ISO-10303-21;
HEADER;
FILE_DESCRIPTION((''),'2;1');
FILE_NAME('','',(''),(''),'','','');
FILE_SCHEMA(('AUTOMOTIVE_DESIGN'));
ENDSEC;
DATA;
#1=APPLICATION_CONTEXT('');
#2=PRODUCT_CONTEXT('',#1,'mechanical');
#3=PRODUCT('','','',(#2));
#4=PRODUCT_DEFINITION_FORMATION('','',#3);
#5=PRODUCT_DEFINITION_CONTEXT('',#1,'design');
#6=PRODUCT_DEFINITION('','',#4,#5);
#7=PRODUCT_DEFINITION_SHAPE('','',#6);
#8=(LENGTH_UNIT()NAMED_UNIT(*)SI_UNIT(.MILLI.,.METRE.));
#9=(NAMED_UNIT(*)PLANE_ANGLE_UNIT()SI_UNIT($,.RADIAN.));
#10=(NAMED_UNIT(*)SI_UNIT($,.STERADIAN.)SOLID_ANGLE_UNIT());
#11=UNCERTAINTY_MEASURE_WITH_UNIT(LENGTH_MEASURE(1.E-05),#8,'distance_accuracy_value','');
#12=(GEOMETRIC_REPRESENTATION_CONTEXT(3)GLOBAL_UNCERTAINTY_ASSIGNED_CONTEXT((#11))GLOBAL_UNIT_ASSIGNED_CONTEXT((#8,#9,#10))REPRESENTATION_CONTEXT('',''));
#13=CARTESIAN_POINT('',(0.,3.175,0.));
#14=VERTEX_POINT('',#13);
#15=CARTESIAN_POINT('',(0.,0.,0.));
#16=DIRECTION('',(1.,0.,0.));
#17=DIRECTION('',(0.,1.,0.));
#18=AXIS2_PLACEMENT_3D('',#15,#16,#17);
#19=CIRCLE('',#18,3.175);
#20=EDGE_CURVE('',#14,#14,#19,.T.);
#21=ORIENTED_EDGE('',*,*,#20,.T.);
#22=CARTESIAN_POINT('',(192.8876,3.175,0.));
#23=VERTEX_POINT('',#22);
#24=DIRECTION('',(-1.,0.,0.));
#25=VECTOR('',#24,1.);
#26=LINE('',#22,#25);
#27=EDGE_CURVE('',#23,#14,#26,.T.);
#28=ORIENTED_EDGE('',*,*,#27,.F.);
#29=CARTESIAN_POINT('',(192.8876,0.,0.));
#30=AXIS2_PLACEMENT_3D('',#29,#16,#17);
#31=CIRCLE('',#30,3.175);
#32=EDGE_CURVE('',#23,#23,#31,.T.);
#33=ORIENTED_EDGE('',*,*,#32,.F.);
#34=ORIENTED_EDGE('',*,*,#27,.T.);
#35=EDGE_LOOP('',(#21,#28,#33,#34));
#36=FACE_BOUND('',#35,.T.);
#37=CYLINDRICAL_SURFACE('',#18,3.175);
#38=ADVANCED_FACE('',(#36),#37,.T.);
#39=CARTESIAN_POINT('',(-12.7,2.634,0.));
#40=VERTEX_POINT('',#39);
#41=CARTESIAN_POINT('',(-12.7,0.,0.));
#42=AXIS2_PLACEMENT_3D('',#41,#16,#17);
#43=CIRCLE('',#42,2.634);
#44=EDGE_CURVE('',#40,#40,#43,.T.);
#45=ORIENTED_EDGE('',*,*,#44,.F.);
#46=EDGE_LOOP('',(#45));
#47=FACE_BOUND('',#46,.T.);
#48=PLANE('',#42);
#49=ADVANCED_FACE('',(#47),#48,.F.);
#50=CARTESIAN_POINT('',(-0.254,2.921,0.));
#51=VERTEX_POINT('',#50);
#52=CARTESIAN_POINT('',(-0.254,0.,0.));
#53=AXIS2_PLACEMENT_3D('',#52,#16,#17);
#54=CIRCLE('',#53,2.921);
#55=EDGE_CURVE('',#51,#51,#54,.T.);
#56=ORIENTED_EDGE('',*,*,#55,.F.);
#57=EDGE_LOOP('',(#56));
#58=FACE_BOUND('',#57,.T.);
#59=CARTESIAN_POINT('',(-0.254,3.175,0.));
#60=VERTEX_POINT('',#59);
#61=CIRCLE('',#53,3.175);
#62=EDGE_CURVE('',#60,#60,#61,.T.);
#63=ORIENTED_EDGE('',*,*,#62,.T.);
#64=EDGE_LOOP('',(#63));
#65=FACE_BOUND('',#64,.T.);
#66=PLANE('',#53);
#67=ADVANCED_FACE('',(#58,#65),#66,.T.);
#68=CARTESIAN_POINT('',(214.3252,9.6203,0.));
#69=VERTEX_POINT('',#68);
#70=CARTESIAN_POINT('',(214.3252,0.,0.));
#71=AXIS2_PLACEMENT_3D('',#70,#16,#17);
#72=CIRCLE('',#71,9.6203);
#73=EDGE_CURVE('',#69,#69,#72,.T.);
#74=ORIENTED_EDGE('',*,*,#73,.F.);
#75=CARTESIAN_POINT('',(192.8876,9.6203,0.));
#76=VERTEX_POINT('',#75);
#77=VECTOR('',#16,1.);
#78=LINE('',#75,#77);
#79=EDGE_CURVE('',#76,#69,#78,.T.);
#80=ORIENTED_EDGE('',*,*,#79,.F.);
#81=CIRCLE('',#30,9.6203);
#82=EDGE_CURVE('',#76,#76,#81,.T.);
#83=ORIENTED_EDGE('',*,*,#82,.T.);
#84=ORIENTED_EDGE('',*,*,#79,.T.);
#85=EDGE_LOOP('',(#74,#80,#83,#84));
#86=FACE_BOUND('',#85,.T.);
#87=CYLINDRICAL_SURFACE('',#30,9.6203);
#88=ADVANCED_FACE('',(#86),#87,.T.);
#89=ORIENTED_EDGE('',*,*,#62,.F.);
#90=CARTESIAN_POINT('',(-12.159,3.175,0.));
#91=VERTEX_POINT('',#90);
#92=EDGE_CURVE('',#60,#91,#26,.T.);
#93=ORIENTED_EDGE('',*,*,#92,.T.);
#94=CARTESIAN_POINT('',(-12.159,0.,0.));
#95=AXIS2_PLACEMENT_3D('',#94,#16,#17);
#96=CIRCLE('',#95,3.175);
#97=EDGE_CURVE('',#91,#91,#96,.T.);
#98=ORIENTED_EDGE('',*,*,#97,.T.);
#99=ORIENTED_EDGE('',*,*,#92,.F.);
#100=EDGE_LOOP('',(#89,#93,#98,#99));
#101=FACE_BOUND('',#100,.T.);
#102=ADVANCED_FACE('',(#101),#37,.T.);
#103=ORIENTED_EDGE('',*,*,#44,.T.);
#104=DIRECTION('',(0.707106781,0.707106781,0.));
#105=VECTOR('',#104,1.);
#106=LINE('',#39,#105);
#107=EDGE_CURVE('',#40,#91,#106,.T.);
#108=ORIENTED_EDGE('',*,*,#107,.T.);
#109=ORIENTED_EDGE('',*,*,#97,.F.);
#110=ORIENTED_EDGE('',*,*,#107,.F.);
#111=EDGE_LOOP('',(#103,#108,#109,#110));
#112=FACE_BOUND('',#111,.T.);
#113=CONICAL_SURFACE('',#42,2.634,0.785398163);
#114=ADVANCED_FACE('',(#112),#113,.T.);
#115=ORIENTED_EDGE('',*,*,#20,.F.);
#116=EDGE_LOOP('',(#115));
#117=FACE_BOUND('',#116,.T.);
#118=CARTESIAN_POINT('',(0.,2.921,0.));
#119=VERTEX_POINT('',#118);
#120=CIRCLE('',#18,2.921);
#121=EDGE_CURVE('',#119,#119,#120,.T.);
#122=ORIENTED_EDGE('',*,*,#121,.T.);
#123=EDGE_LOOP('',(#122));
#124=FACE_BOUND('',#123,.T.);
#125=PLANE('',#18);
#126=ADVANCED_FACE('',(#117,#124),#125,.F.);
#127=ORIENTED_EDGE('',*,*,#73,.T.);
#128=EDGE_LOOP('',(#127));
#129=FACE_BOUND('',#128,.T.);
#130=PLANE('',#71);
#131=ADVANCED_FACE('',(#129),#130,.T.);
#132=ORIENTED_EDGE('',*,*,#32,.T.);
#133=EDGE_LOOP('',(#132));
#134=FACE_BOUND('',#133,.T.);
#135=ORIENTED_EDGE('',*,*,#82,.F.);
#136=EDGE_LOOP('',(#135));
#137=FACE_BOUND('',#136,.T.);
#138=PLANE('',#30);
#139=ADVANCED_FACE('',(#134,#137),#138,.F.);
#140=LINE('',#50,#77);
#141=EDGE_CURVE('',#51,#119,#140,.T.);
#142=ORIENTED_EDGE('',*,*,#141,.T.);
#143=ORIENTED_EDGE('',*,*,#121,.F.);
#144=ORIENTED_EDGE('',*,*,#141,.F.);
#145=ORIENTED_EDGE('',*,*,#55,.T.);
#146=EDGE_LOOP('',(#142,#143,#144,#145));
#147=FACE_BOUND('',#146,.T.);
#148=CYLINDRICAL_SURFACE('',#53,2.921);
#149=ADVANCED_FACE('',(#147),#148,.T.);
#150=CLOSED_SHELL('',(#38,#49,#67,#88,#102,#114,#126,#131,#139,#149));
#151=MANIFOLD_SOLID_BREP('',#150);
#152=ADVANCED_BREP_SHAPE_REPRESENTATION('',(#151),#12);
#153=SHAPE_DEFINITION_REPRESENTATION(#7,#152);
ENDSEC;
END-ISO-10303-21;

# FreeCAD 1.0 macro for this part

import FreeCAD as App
import Part
import Sketcher
from FreeCAD import Vector
Q = App.Units.Quantity

doc = App.newDocument("Part")
params = doc.addObject("Spreadsheet::Sheet", "Params")
for row, (alias, value) in enumerate([
    ("sketch1_width", "8.438 in"),
    ("sketch1_width2", "0.844 in"),
    ("sketch1_height", "0.125 in"),
    ("revolution_angle", "360 deg"),
    ("sketch2_width", "0.5 in"),
    ("sketch2_height", "0.125 in"),
    ("revolution2_angle", "360 deg"),
    ("sketch3_width", "0.01 in"),
    ("sketch3_height", "0.02 in"),
    ("groove_angle", "360 deg"),
], start=1):
    params.set(f"A{row}", alias)
    params.set(f"B{row}", "=" + value)
    params.setAlias(f"B{row}", alias)

body = doc.addObject("PartDesign::Body", "Body")

# Sketch on XY plane
sketch1 = body.newObject("Sketcher::SketchObject", "Sketch")
sketch1.AttachmentSupport = (doc.getObject("XY_Plane"), [""])
sketch1.MapMode = "FlatFace"
sketch1.addGeometry([
    Part.LineSegment(Vector(0, 0, 0), Vector(214.3252, 0, 0)),  # 0
    Part.LineSegment(Vector(214.3252, 0, 0), Vector(214.3252, 9.6203, 0)),  # 1
    Part.LineSegment(Vector(214.3252, 9.6203, 0), Vector(192.8876, 9.6203, 0)),  # 2
    Part.LineSegment(Vector(192.8876, 9.6203, 0), Vector(192.8876, 3.175, 0)),  # 3
    Part.LineSegment(Vector(192.8876, 3.175, 0), Vector(0, 3.175, 0)),  # 4
    Part.LineSegment(Vector(0, 3.175, 0), Vector(0, 0, 0)),  # 5
], False)
sketch1.addConstraint([
    Sketcher.Constraint("Coincident", 0, 2, 1, 1),
    Sketcher.Constraint("Coincident", 1, 2, 2, 1),
    Sketcher.Constraint("Coincident", 2, 2, 3, 1),
    Sketcher.Constraint("Coincident", 3, 2, 4, 1),
    Sketcher.Constraint("Coincident", 4, 2, 5, 1),
    Sketcher.Constraint("Coincident", 5, 2, 0, 1),
    Sketcher.Constraint("Horizontal", 0),
    Sketcher.Constraint("Vertical", 1),
    Sketcher.Constraint("Horizontal", 2),
    Sketcher.Constraint("Vertical", 3),
    Sketcher.Constraint("Horizontal", 4),
    Sketcher.Constraint("Vertical", 5),
    Sketcher.Constraint("Coincident", 5, 2, -1, 1),
    Sketcher.Constraint("DistanceX", 0, 1, 0, 2, Q("8.438 in")),
    Sketcher.Constraint("DistanceX", 2, 2, 2, 1, Q("0.844 in")),
    Sketcher.Constraint("DistanceY", 5, 2, 5, 1, Q("0.125 in")),
    Sketcher.Constraint("DistanceY", 1, 1, 1, 2, 9.6203),
])
sketch1.setExpression("Constraints[13]", "Params.sketch1_width")
sketch1.setExpression("Constraints[14]", "Params.sketch1_width2")
sketch1.setExpression("Constraints[15]", "Params.sketch1_height")
revolution = body.newObject("PartDesign::Revolution", "Revolution")
revolution.Profile = sketch1
revolution.ReferenceAxis = (sketch1, ["H_Axis"])
revolution.setExpression("Angle", "Params.revolution_angle")

# Sketch on XY plane
sketch2 = body.newObject("Sketcher::SketchObject", "Sketch001")
sketch2.AttachmentSupport = (doc.getObject("XY_Plane"), [""])
sketch2.MapMode = "FlatFace"
sketch2.addGeometry([
    Part.LineSegment(Vector(-12.7, 0, 0), Vector(0, 0, 0)),  # 0
    Part.LineSegment(Vector(0, 0, 0), Vector(0, 3.175, 0)),  # 1
    Part.LineSegment(Vector(0, 3.175, 0), Vector(-12.159, 3.175, 0)),  # 2
    Part.LineSegment(Vector(-12.159, 3.175, 0), Vector(-12.7, 2.634, 0)),  # 3
    Part.LineSegment(Vector(-12.7, 2.634, 0), Vector(-12.7, 0, 0)),  # 4
], False)
sketch2.addConstraint([
    Sketcher.Constraint("Coincident", 0, 2, 1, 1),
    Sketcher.Constraint("Coincident", 1, 2, 2, 1),
    Sketcher.Constraint("Coincident", 2, 2, 3, 1),
    Sketcher.Constraint("Coincident", 3, 2, 4, 1),
    Sketcher.Constraint("Coincident", 4, 2, 0, 1),
    Sketcher.Constraint("Horizontal", 0),
    Sketcher.Constraint("Vertical", 1),
    Sketcher.Constraint("Horizontal", 2),
    Sketcher.Constraint("Vertical", 4),
    Sketcher.Constraint("Coincident", 0, 2, -1, 1),
    Sketcher.Constraint("DistanceX", 0, 1, 0, 2, Q("0.5 in")),
    Sketcher.Constraint("Angle", 3, Q("-135 deg")),
    Sketcher.Constraint("DistanceY", 1, 1, 1, 2, Q("0.125 in")),
    Sketcher.Constraint("DistanceX", 2, 2, 2, 1, Q("0.4787 in")),
])
sketch2.setExpression("Constraints[10]", "Params.sketch2_width")
sketch2.setExpression("Constraints[12]", "Params.sketch2_height")
revolution2 = body.newObject("PartDesign::Revolution", "Revolution001")
revolution2.Profile = sketch2
revolution2.ReferenceAxis = (sketch2, ["H_Axis"])
revolution2.setExpression("Angle", "Params.revolution2_angle")

# Sketch on XY plane
sketch3 = body.newObject("Sketcher::SketchObject", "Sketch002")
sketch3.AttachmentSupport = (doc.getObject("XY_Plane"), [""])
sketch3.MapMode = "FlatFace"
sketch3.addGeometry([
    Part.LineSegment(Vector(-0.254, 3.429, 0), Vector(-0.254, 2.921, 0)),
    Part.LineSegment(Vector(-0.254, 2.921, 0), Vector(0, 2.921, 0)),
    Part.LineSegment(Vector(0, 2.921, 0), Vector(0, 3.429, 0)),
    Part.LineSegment(Vector(0, 3.429, 0), Vector(-0.254, 3.429, 0)),
], False)
sketch3.addConstraint([
    Sketcher.Constraint("Coincident", 0, 2, 1, 1),
    Sketcher.Constraint("Coincident", 1, 2, 2, 1),
    Sketcher.Constraint("Coincident", 2, 2, 3, 1),
    Sketcher.Constraint("Coincident", 3, 2, 0, 1),
    Sketcher.Constraint("Vertical", 0),
    Sketcher.Constraint("Horizontal", 1),
    Sketcher.Constraint("Vertical", 2),
    Sketcher.Constraint("Horizontal", 3),
    Sketcher.Constraint("PointOnObject", 1, 2, -2),
    Sketcher.Constraint("DistanceX", 1, 1, 1, 2, Q("0.01 in")),
    Sketcher.Constraint("DistanceY", 0, 2, 0, 1, Q("0.02 in")),
    Sketcher.Constraint("DistanceY", -1, 1, 0, 2, Q("0.115 in")),
])
sketch3.setExpression("Constraints[9]", "Params.sketch3_width")
sketch3.setExpression("Constraints[10]", "Params.sketch3_height")
groove = body.newObject("PartDesign::Groove", "Groove")
groove.Profile = sketch3
groove.ReferenceAxis = (sketch3, ["H_Axis"])
groove.setExpression("Angle", "Params.groove_angle")

doc.recompute()
